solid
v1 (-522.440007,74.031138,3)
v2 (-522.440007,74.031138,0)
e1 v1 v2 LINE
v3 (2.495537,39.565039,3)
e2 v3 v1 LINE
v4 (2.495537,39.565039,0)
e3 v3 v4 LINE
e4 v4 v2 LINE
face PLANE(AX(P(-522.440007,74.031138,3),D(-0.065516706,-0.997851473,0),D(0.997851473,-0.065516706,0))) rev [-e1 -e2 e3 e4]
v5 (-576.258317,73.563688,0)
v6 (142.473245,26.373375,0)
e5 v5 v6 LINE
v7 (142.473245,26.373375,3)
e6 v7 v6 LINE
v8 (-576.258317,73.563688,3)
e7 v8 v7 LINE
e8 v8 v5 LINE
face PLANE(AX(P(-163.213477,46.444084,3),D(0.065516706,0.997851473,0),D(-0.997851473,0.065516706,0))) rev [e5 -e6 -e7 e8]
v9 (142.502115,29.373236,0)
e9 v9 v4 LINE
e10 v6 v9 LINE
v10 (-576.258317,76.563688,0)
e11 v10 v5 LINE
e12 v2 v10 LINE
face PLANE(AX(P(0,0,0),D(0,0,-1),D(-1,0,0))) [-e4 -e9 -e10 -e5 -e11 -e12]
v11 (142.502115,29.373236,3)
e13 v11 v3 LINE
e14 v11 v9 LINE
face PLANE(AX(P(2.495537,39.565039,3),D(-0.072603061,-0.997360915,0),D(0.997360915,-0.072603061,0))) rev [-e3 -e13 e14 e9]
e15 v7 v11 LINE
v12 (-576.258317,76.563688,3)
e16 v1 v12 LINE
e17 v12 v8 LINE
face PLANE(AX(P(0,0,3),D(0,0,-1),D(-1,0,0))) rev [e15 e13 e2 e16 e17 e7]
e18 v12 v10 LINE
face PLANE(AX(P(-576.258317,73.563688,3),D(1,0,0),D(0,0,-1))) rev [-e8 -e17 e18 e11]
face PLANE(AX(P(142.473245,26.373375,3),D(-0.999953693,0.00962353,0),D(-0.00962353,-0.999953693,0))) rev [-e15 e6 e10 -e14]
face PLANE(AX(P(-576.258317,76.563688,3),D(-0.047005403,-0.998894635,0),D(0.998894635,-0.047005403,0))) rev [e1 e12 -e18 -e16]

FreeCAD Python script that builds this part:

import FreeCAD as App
import Part
import Sketcher
Q = App.Units.Quantity

doc = App.newDocument("Part")
params = doc.addObject("Spreadsheet::Sheet", "Params")
for row, (alias, value) in enumerate([
    ("sketch1_height", "3 mm"),
    ("sketch1_length", "3 mm"),
    ("pad1_length", "3 mm"),
], start=1):
    params.set(f"A{row}", alias)
    params.set(f"B{row}", "=" + value)
    params.setAlias(f"B{row}", alias)

body = doc.addObject("PartDesign::Body", "Body")

# Sketch on XY plane
sketch1 = body.newObject("Sketcher::SketchObject", "Sketch")
sketch1.AttachmentSupport = (doc.getObject("XY_Plane"), [""])
sketch1.MapMode = "FlatFace"
sketch1.addGeometry([
    Part.LineSegment(App.Vector(-576.3, 73.6, 0), App.Vector(-532.4, 70.7, 0)),  # 0
    Part.LineSegment(App.Vector(-532.4, 70.7, 0), App.Vector(-516.4, 69.6, 0)),  # 1
    Part.LineSegment(App.Vector(-516.4, 69.6, 0), App.Vector(-472.5, 66.8, 0)),  # 2
    Part.LineSegment(App.Vector(-472.5, 66.8, 0), App.Vector(-356.7, 59.2, 0)),  # 3
    Part.LineSegment(App.Vector(-356.7, 59.2, 0), App.Vector(-163.2, 46.4, 0)),  # 4
    Part.LineSegment(App.Vector(-163.2, 46.4, 0), App.Vector(142.5, 26.4, 0)),  # 5
    Part.LineSegment(App.Vector(142.5, 26.4, 0), App.Vector(142.5, 29.4, 0)),  # 6
    Part.LineSegment(App.Vector(142.5, 29.4, 0), App.Vector(2.5, 39.6, 0)),  # 7
    Part.LineSegment(App.Vector(2.5, 39.6, 0), App.Vector(-372.8, 64.2, 0)),  # 8
    Part.LineSegment(App.Vector(-372.8, 64.2, 0), App.Vector(-466.5, 70.4, 0)),  # 9
    Part.LineSegment(App.Vector(-466.5, 70.4, 0), App.Vector(-522.4, 74, 0)),  # 10
    Part.LineSegment(App.Vector(-522.4, 74, 0), App.Vector(-576.3, 76.6, 0)),  # 11
    Part.LineSegment(App.Vector(-576.3, 76.6, 0), App.Vector(-576.3, 73.6, 0)),  # 12
], False)
sketch1.addConstraint([
    Sketcher.Constraint("Coincident", 0, 2, 1, 1),
    Sketcher.Constraint("Coincident", 1, 2, 2, 1),
    Sketcher.Constraint("Coincident", 2, 2, 3, 1),
    Sketcher.Constraint("Coincident", 3, 2, 4, 1),
    Sketcher.Constraint("Coincident", 4, 2, 5, 1),
    Sketcher.Constraint("Coincident", 5, 2, 6, 1),
    Sketcher.Constraint("Coincident", 6, 2, 7, 1),
    Sketcher.Constraint("Coincident", 7, 2, 8, 1),
    Sketcher.Constraint("Coincident", 8, 2, 9, 1),
    Sketcher.Constraint("Coincident", 9, 2, 10, 1),
    Sketcher.Constraint("Coincident", 10, 2, 11, 1),
    Sketcher.Constraint("Coincident", 11, 2, 12, 1),
    Sketcher.Constraint("Coincident", 12, 2, 0, 1),
    Sketcher.Constraint("Vertical", 12),
    Sketcher.Constraint("Parallel", 0, 1),
    Sketcher.Constraint("Parallel", 1, 2),
    Sketcher.Constraint("Parallel", 2, 3),
    Sketcher.Constraint("Parallel", 3, 4),
    Sketcher.Constraint("Parallel", 4, 5),
    Sketcher.Constraint("Parallel", 5, 8),
    Sketcher.Constraint("Parallel", 8, 9),
    Sketcher.Constraint("Parallel", 9, 10),
    Sketcher.Constraint("Equal", 0, 2),
    Sketcher.Constraint("DistanceY", 12, 2, 12, 1, Q("3 mm")),
    Sketcher.Constraint("Distance", 6, Q("3 mm")),
    Sketcher.Constraint("Distance", 0, Q("43.934189 mm")),
    Sketcher.Constraint("Distance", 1, Q("16.065811 mm")),
    Sketcher.Constraint("Distance", 3, Q("116.065811 mm")),
    Sketcher.Constraint("Distance", 4, Q("193.934189 mm")),
    Sketcher.Constraint("Distance", 5, Q("306.344912 mm")),
    Sketcher.Constraint("Distance", 8, Q("376.065811 mm")),
    Sketcher.Constraint("Distance", 9, Q("93.934189 mm")),
    Sketcher.Constraint("Distance", 10, Q("56.065811 mm")),
    Sketcher.Constraint("DistanceX", 0, 2, -1, 1, Q("532.418521 mm")),
    Sketcher.Constraint("DistanceY", -1, 1, 7, 2, Q("39.565039 mm")),
    Sketcher.Constraint("DistanceY", -1, 1, 8, 2, Q("64.203632 mm")),
    Sketcher.Constraint("DistanceY", -1, 1, 11, 2, Q("76.563688 mm")),
    Sketcher.Constraint("DistanceX", 5, 2, 6, 2, Q("0.028871 mm")),
    Sketcher.Constraint("DistanceX", 7, 2, 6, 2, Q("140.006578 mm")),
])
sketch1.setExpression("Constraints[23]", "Params.sketch1_height")
sketch1.setExpression("Constraints[24]", "Params.sketch1_length")
pad1 = body.newObject("PartDesign::Pad", "Pad")
pad1.Profile = sketch1
pad1.setExpression("Length", "Params.pad1_length")

doc.recompute()
